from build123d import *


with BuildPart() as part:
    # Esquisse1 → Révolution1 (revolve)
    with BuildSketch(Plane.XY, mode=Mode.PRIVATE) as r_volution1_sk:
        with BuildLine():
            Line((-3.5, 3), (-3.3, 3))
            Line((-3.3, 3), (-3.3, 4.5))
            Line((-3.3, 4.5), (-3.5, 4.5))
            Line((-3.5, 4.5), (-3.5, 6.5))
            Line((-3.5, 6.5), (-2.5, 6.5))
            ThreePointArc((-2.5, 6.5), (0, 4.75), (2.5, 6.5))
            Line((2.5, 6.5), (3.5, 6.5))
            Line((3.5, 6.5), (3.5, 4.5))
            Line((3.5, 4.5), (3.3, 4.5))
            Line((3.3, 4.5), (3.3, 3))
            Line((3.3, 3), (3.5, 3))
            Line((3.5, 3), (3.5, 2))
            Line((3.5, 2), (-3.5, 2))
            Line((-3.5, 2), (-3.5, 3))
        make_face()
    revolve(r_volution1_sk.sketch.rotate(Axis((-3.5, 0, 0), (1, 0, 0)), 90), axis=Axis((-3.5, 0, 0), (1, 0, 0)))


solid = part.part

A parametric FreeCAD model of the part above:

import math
import FreeCAD as App
import Part
import Sketcher

V = App.Vector

doc = App.newDocument("Part")
body = doc.addObject("PartDesign::Body", "Body")

# Sketch on XY plane
sketch1 = body.newObject("Sketcher::SketchObject", "Sketch")
sketch1.AttachmentSupport = (doc.getObject("XY_Plane"), [""])
sketch1.MapMode = "FlatFace"
sketch1.addGeometry([
    Part.LineSegment(V(-3.3, 3, 0), V(-3.5, 3, 0)),  # 0
    Part.LineSegment(V(-3.5, 3, 0), V(-3.5, 2, 0)),  # 1
    Part.LineSegment(V(-3.5, 2, 0), V(3.5, 2, 0)),  # 2
    Part.LineSegment(V(3.5, 2, 0), V(3.5, 3, 0)),  # 3
    Part.LineSegment(V(3.5, 3, 0), V(3.3, 3, 0)),  # 4
    Part.LineSegment(V(3.3, 3, 0), V(3.3, 4.5, 0)),  # 5
    Part.LineSegment(V(3.3, 4.5, 0), V(3.5, 4.5, 0)),  # 6
    Part.LineSegment(V(3.5, 4.5, 0), V(3.5, 6.5, 0)),  # 7
    Part.LineSegment(V(3.5, 6.5, 0), V(2.5, 6.5, 0)),  # 8
    Part.ArcOfCircle(Part.Circle(V(0, 7.41, 0), V(0, 0, 1), 2.66), math.radians(-160), math.radians(-20)),  # 9
    Part.LineSegment(V(-2.5, 6.5, 0), V(-3.5, 6.5, 0)),  # 10
    Part.LineSegment(V(-3.5, 6.5, 0), V(-3.5, 4.5, 0)),  # 11
    Part.LineSegment(V(-3.5, 4.5, 0), V(-3.3, 4.5, 0)),  # 12
    Part.LineSegment(V(-3.3, 4.5, 0), V(-3.3, 3, 0)),  # 13
], False)
sketch1.addConstraint([
    Sketcher.Constraint("Coincident", 0, 2, 1, 1),
    Sketcher.Constraint("Coincident", 1, 2, 2, 1),
    Sketcher.Constraint("Coincident", 2, 2, 3, 1),
    Sketcher.Constraint("Coincident", 3, 2, 4, 1),
    Sketcher.Constraint("Coincident", 4, 2, 5, 1),
    Sketcher.Constraint("Coincident", 5, 2, 6, 1),
    Sketcher.Constraint("Coincident", 6, 2, 7, 1),
    Sketcher.Constraint("Coincident", 7, 2, 8, 1),
    Sketcher.Constraint("Coincident", 8, 2, 9, 2),
    Sketcher.Constraint("Coincident", 9, 1, 10, 1),
    Sketcher.Constraint("Coincident", 10, 2, 11, 1),
    Sketcher.Constraint("Coincident", 11, 2, 12, 1),
    Sketcher.Constraint("Coincident", 12, 2, 13, 1),
    Sketcher.Constraint("Coincident", 13, 2, 0, 1),
    Sketcher.Constraint("Horizontal", 0),
    Sketcher.Constraint("Vertical", 1),
    Sketcher.Constraint("Horizontal", 2),
    Sketcher.Constraint("Vertical", 3),
    Sketcher.Constraint("Horizontal", 4),
    Sketcher.Constraint("Vertical", 5),
    Sketcher.Constraint("Horizontal", 6),
    Sketcher.Constraint("Vertical", 7),
    Sketcher.Constraint("Horizontal", 8),
    Sketcher.Constraint("Horizontal", 10),
    Sketcher.Constraint("Vertical", 11),
    Sketcher.Constraint("Horizontal", 12),
    Sketcher.Constraint("Vertical", 13),
    Sketcher.Constraint("Symmetric", 0, 2, 3, 2, -2),
    Sketcher.Constraint("Symmetric", 8, 2, 9, 1, -2),
    Sketcher.Constraint("Symmetric", 6, 2, 11, 2, -2),
    Sketcher.Constraint("Vertical", 3, 2, 6, 2),
    Sketcher.Constraint("Equal", 0, 4),
    Sketcher.Constraint("Equal", 10, 1),
    Sketcher.Constraint("DistanceX", 2, 1, 2, 2, 7.0),
    Sketcher.Constraint("DistanceX", 8, 2, 8, 1, 1.0),
    Sketcher.Constraint("DistanceY", 7, 1, 7, 2, 2.0),
    Sketcher.Constraint("DistanceX", 0, 2, 0, 1, 0.2),
    Sketcher.Constraint("DistanceY", 5, 1, 5, 2, 1.5),
    Sketcher.Constraint("DistanceY", -1, 1, 0, 2, 3.0),
    Sketcher.Constraint("Radius", 9, 2.660714),
])
revolution = body.newObject("PartDesign::Revolution", "Revolution")
revolution.Profile = sketch1
revolution.ReferenceAxis = (sketch1, ["H_Axis"])
revolution.Angle = 360

doc.recompute()
